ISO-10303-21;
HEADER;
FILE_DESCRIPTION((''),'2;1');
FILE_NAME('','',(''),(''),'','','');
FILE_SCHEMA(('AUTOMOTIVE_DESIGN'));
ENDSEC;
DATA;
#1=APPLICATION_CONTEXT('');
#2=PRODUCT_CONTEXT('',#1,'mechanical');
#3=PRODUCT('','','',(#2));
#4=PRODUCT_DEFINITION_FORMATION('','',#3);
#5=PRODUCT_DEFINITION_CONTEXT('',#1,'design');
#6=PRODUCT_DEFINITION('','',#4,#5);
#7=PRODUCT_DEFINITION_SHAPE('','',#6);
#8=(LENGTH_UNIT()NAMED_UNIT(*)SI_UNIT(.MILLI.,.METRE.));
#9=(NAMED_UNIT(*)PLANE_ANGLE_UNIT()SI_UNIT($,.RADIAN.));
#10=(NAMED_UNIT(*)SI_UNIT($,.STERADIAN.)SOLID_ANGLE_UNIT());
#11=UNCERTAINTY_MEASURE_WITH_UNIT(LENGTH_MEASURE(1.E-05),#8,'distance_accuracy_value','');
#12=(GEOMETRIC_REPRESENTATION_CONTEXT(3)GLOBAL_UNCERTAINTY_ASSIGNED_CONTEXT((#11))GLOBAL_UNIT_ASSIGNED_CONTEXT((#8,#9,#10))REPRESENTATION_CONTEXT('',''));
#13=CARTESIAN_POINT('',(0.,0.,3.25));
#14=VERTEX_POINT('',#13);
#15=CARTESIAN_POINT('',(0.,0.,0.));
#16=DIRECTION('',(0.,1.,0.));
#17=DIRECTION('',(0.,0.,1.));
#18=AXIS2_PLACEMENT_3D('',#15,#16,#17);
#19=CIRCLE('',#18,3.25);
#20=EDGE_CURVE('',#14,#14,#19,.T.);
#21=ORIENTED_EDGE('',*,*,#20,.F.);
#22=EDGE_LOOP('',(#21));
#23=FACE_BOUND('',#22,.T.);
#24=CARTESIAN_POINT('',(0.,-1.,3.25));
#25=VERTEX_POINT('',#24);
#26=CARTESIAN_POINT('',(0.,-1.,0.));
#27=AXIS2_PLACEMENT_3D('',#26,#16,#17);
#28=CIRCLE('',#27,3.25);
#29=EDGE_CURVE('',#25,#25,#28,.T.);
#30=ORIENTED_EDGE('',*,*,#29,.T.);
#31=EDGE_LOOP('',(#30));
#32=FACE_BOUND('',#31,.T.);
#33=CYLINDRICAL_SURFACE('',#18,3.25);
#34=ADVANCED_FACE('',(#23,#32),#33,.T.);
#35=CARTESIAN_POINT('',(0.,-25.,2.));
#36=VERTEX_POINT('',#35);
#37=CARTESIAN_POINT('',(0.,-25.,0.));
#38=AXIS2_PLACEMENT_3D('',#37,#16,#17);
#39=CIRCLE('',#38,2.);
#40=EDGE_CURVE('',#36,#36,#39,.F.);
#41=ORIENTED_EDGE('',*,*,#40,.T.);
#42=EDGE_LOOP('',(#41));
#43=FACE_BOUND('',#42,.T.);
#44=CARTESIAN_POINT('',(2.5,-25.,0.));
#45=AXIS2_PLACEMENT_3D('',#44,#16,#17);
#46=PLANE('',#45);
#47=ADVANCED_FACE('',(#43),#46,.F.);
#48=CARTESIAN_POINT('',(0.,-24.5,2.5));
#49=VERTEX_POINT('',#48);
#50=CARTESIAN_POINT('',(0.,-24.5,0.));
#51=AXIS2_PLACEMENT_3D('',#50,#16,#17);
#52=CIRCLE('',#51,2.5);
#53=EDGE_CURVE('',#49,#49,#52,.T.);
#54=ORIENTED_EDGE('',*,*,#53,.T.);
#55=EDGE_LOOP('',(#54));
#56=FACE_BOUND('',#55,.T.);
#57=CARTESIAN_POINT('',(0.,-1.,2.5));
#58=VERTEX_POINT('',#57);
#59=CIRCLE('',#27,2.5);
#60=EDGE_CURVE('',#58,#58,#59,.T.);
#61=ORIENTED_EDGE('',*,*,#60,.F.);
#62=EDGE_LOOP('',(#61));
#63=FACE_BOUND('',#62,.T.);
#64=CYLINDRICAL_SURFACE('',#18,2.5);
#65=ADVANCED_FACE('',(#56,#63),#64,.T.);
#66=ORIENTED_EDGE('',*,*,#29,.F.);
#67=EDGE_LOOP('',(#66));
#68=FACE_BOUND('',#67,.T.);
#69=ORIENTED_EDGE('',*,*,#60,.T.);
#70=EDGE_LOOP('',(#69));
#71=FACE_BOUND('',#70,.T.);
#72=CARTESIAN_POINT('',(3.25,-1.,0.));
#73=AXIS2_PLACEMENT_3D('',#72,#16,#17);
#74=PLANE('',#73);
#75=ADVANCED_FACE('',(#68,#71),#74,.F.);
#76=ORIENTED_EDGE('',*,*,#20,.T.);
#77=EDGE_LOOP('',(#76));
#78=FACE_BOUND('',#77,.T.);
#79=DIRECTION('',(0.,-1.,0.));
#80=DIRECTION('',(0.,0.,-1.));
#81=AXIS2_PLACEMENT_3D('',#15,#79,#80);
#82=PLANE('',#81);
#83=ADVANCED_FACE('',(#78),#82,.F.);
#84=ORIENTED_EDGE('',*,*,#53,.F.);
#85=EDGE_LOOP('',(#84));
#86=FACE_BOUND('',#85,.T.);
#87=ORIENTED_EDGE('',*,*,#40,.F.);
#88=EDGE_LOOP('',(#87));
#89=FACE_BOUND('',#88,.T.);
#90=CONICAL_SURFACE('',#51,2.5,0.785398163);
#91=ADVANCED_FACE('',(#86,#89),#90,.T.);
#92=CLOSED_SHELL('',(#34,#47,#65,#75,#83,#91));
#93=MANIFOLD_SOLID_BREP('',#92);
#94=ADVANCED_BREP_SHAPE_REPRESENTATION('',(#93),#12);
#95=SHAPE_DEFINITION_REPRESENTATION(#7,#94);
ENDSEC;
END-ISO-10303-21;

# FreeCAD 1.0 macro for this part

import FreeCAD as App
import Part
import Sketcher

V = App.Vector


def edges_at(feature, points):
    """Names of the edges that pass closest to the given points."""
    edges = feature.Shape.Edges
    near = lambda p: min(range(len(edges)), key=lambda i: edges[i].distToShape(Part.Vertex(*p))[0])
    return sorted({f"Edge{near(p) + 1}" for p in points})


def add_polygon(sketch, points):
    """Adds a closed chain of lines whose ends are joined by coincident constraints."""
    first, n = sketch.GeometryCount, len(points)
    for a, b in zip(points, points[1:] + points[:1]):
        sketch.addGeometry(Part.LineSegment(App.Vector(*a, 0), App.Vector(*b, 0)), False)
    for i in range(n):
        sketch.addConstraint(Sketcher.Constraint("Coincident", first + i, 2, first + (i + 1) % n, 1))

doc = App.newDocument("Part")
body = doc.addObject("PartDesign::Body", "Body")

# Sketch on XY plane
sketch1 = body.newObject("Sketcher::SketchObject", "Sketch")
sketch1.AttachmentSupport = (doc.getObject("XY_Plane"), [""])
sketch1.MapMode = "FlatFace"
add_polygon(sketch1, [(3.2, 0), (0, 0), (0, -25), (2.5, -25), (2.5, -1), (3.2, -1)])  # lines 0-5
sketch1.addConstraint([
    Sketcher.Constraint("Horizontal", 0),
    Sketcher.Constraint("Vertical", 1),
    Sketcher.Constraint("Horizontal", 2),
    Sketcher.Constraint("Vertical", 3),
    Sketcher.Constraint("Horizontal", 4),
    Sketcher.Constraint("Vertical", 5),
    Sketcher.Constraint("Coincident", 0, 2, -1, 1),
    Sketcher.Constraint("DistanceY", 1, 2, 1, 1, 25.0),
    Sketcher.Constraint("DistanceY", 3, 1, 3, 2, 24.0),
    Sketcher.Constraint("DistanceX", 2, 1, 2, 2, 2.5),
    Sketcher.Constraint("DistanceX", 0, 2, 0, 1, 3.25),
])
revolution = body.newObject("PartDesign::Revolution", "Revolution")
revolution.Profile = sketch1
revolution.ReferenceAxis = (sketch1, ["V_Axis"])
revolution.Angle = 360
doc.recompute()

chamfer = body.newObject("PartDesign::Chamfer", "Chamfer")
chamfer.Base = (revolution, edges_at(revolution, [(0, -25, -2.5)]))
chamfer.Size = 0.5

doc.recompute()
